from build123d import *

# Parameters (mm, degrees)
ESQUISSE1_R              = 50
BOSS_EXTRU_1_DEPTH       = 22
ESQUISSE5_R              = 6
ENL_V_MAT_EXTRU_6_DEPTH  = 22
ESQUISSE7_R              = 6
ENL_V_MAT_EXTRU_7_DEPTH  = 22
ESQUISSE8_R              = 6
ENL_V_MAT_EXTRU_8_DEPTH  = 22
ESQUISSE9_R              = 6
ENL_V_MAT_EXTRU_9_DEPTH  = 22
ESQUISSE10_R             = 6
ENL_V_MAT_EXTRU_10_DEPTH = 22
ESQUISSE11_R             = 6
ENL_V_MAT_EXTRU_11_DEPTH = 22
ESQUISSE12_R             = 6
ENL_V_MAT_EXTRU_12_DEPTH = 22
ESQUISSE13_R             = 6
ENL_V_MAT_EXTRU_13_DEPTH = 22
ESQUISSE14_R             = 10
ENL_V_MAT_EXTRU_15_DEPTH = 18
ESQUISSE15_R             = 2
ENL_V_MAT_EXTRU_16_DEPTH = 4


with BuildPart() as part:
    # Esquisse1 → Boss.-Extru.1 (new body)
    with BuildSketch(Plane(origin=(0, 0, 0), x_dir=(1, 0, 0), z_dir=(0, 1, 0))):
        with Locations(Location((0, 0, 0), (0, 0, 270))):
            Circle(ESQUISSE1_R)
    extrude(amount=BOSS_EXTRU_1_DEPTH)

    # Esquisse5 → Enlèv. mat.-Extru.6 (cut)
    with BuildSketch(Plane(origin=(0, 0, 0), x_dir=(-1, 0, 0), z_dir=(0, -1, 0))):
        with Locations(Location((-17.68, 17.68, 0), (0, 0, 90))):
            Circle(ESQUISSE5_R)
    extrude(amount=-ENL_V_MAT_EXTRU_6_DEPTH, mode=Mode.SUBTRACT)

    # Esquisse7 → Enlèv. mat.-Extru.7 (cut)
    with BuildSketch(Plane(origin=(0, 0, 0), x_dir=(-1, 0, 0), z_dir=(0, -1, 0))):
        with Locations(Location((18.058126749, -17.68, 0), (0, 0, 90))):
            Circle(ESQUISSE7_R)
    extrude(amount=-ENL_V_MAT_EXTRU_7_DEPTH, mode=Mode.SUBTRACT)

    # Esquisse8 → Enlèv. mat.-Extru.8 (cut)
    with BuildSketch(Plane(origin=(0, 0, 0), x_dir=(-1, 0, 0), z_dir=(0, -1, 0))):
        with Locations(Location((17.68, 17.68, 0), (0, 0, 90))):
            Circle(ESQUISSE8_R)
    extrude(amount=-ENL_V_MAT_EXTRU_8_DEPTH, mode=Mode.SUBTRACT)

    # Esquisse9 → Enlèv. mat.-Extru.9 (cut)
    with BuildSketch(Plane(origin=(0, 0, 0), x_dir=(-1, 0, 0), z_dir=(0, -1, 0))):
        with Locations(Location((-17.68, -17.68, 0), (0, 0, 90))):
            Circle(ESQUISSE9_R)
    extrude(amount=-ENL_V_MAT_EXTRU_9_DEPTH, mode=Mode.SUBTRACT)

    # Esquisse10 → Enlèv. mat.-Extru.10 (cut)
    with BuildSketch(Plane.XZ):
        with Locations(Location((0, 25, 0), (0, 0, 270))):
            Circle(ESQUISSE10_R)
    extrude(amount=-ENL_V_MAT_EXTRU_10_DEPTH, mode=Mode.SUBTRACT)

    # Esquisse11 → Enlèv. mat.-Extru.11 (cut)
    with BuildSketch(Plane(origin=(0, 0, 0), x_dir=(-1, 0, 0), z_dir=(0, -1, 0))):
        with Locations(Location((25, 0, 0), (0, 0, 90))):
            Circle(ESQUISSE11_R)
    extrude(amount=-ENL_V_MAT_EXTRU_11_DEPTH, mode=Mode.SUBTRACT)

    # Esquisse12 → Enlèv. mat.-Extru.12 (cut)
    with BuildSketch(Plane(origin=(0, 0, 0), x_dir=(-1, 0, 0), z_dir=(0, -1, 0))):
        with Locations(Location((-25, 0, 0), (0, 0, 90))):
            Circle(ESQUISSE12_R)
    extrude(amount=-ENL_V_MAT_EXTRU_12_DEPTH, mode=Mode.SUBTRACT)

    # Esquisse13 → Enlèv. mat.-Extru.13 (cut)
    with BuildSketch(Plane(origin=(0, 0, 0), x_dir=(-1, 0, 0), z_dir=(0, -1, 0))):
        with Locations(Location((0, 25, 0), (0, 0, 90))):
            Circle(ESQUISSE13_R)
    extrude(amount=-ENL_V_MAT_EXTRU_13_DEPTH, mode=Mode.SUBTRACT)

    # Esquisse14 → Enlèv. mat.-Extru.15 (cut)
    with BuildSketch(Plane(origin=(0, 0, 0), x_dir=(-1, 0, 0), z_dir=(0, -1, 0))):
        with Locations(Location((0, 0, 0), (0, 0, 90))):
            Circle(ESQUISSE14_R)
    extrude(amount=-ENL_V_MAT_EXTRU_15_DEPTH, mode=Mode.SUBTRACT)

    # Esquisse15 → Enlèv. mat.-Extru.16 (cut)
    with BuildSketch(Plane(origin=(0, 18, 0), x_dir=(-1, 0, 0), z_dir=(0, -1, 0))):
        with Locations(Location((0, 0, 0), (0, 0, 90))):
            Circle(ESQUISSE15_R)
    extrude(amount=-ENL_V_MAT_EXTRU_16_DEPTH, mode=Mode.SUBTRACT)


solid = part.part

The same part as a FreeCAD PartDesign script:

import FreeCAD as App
import Part
import Sketcher

doc = App.newDocument("Part")
params = doc.addObject("Spreadsheet::Sheet", "Params")
for row, (alias, value) in enumerate([
    ("sketch1_diameter", "100 mm"),
    ("pad1_length", "22 mm"),
    ("sketch2_diameter", "12 mm"),
    ("pocket1_length", "22 mm"),
    ("sketch3_diameter", "12 mm"),
    ("pocket2_length", "22 mm"),
    ("sketch4_diameter", "12 mm"),
    ("pocket3_length", "22 mm"),
    ("sketch5_diameter", "12 mm"),
    ("pocket4_length", "22 mm"),
    ("sketch6_diameter", "12 mm"),
    ("pocket5_length", "22 mm"),
    ("sketch7_diameter", "12 mm"),
    ("pocket6_length", "22 mm"),
    ("sketch8_diameter", "12 mm"),
    ("pocket7_length", "22 mm"),
    ("sketch9_diameter", "12 mm"),
    ("pocket8_length", "22 mm"),
    ("sketch10_diameter", "20 mm"),
    ("pocket9_length", "18 mm"),
    ("sketch11_diameter", "4 mm"),
    ("pocket10_length", "4 mm"),
], start=1):
    params.set(f"A{row}", alias)
    params.set(f"B{row}", "=" + value)
    params.setAlias(f"B{row}", alias)

body = doc.addObject("PartDesign::Body", "Body")

sketch1 = body.newObject("Sketcher::SketchObject", "Sketch")
sketch1.AttachmentSupport = (doc.getObject("XZ_Plane"), [""])
sketch1.MapMode = "FlatFace"
sketch1.addGeometry(Part.Circle(App.Vector(0, 0, 0), App.Vector(0, 0, 1), 50), False)
sketch1.addConstraint([
    Sketcher.Constraint("Coincident", 0, 3, -1, 1),
    Sketcher.Constraint("Diameter", 0, 100.0),
])
sketch1.setExpression("Constraints[1]", "Params.sketch1_diameter")
pad1 = body.newObject("PartDesign::Pad", "Pad")
pad1.Profile = sketch1
pad1.setExpression("Length", "Params.pad1_length")
pad1.Reversed = True

sketch2 = body.newObject("Sketcher::SketchObject", "Sketch001")
sketch2.AttachmentSupport = (doc.getObject("XZ_Plane"), [""])
sketch2.MapMode = "FlatFace"
sketch2.addGeometry(Part.Circle(App.Vector(18, -18, 0), App.Vector(0, 0, 1), 6), False)
sketch2.addConstraint([
    Sketcher.Constraint("Diameter", 0, 12.0),
    Sketcher.Constraint("DistanceX", -1, 1, 0, 3, 17.68),
    Sketcher.Constraint("DistanceY", 0, 3, -1, 1, 17.68),
])
sketch2.setExpression("Constraints[0]", "Params.sketch2_diameter")
pocket1 = body.newObject("PartDesign::Pocket", "Pocket")
pocket1.Profile = sketch2
pocket1.setExpression("Length", "Params.pocket1_length")

sketch3 = body.newObject("Sketcher::SketchObject", "Sketch002")
sketch3.AttachmentSupport = (doc.getObject("XZ_Plane"), [""])
sketch3.MapMode = "FlatFace"
sketch3.addGeometry(Part.Circle(App.Vector(-18, 18, 0), App.Vector(0, 0, 1), 6), False)
sketch3.addConstraint([
    Sketcher.Constraint("Diameter", 0, 12.0),
    Sketcher.Constraint("DistanceY", -1, 1, 0, 3, 17.68),
    Sketcher.Constraint("DistanceX", 0, 3, -1, 1, 18.058127),
])
sketch3.setExpression("Constraints[0]", "Params.sketch3_diameter")
pocket2 = body.newObject("PartDesign::Pocket", "Pocket001")
pocket2.Profile = sketch3
pocket2.setExpression("Length", "Params.pocket2_length")

sketch4 = body.newObject("Sketcher::SketchObject", "Sketch003")
sketch4.AttachmentSupport = (doc.getObject("XZ_Plane"), [""])
sketch4.MapMode = "FlatFace"
sketch4.addGeometry(Part.Circle(App.Vector(-18, -18, 0), App.Vector(0, 0, 1), 6), False)
sketch4.addConstraint([
    Sketcher.Constraint("Diameter", 0, 12.0),
    Sketcher.Constraint("DistanceX", 0, 3, -1, 1, 17.68),
    Sketcher.Constraint("DistanceY", 0, 3, -1, 1, 17.68),
])
sketch4.setExpression("Constraints[0]", "Params.sketch4_diameter")
pocket3 = body.newObject("PartDesign::Pocket", "Pocket002")
pocket3.Profile = sketch4
pocket3.setExpression("Length", "Params.pocket3_length")

sketch5 = body.newObject("Sketcher::SketchObject", "Sketch004")
sketch5.AttachmentSupport = (doc.getObject("XZ_Plane"), [""])
sketch5.MapMode = "FlatFace"
sketch5.addGeometry(Part.Circle(App.Vector(18, 18, 0), App.Vector(0, 0, 1), 6), False)
sketch5.addConstraint([
    Sketcher.Constraint("Diameter", 0, 12.0),
    Sketcher.Constraint("DistanceX", -1, 1, 0, 3, 17.68),
    Sketcher.Constraint("DistanceY", -1, 1, 0, 3, 17.68),
])
sketch5.setExpression("Constraints[0]", "Params.sketch5_diameter")
pocket4 = body.newObject("PartDesign::Pocket", "Pocket003")
pocket4.Profile = sketch5
pocket4.setExpression("Length", "Params.pocket4_length")

sketch6 = body.newObject("Sketcher::SketchObject", "Sketch005")
sketch6.AttachmentSupport = (doc.getObject("XZ_Plane"), [""])
sketch6.MapMode = "FlatFace"
sketch6.addGeometry(Part.Circle(App.Vector(0, 25, 0), App.Vector(0, 0, 1), 6), False)
sketch6.addConstraint([
    Sketcher.Constraint("PointOnObject", 0, 3, -2),
    Sketcher.Constraint("Diameter", 0, 12.0),
    Sketcher.Constraint("DistanceY", -1, 1, 0, 3, 25.0),
])
sketch6.setExpression("Constraints[1]", "Params.sketch6_diameter")
pocket5 = body.newObject("PartDesign::Pocket", "Pocket004")
pocket5.Profile = sketch6
pocket5.setExpression("Length", "Params.pocket5_length")

sketch7 = body.newObject("Sketcher::SketchObject", "Sketch006")
sketch7.AttachmentSupport = (doc.getObject("XZ_Plane"), [""])
sketch7.MapMode = "FlatFace"
sketch7.addGeometry(Part.Circle(App.Vector(-25, 0, 0), App.Vector(0, 0, 1), 6), False)
sketch7.addConstraint([
    Sketcher.Constraint("PointOnObject", 0, 3, -1),
    Sketcher.Constraint("Diameter", 0, 12.0),
    Sketcher.Constraint("DistanceX", 0, 3, -1, 1, 25.0),
])
sketch7.setExpression("Constraints[1]", "Params.sketch7_diameter")
pocket6 = body.newObject("PartDesign::Pocket", "Pocket005")
pocket6.Profile = sketch7
pocket6.setExpression("Length", "Params.pocket6_length")

sketch8 = body.newObject("Sketcher::SketchObject", "Sketch007")
sketch8.AttachmentSupport = (doc.getObject("XZ_Plane"), [""])
sketch8.MapMode = "FlatFace"
sketch8.addGeometry(Part.Circle(App.Vector(25, 0, 0), App.Vector(0, 0, 1), 6), False)
sketch8.addConstraint([
    Sketcher.Constraint("PointOnObject", 0, 3, -1),
    Sketcher.Constraint("Diameter", 0, 12.0),
    Sketcher.Constraint("DistanceX", -1, 1, 0, 3, 25.0),
])
sketch8.setExpression("Constraints[1]", "Params.sketch8_diameter")
pocket7 = body.newObject("PartDesign::Pocket", "Pocket006")
pocket7.Profile = sketch8
pocket7.setExpression("Length", "Params.pocket7_length")

sketch9 = body.newObject("Sketcher::SketchObject", "Sketch008")
sketch9.AttachmentSupport = (doc.getObject("XZ_Plane"), [""])
sketch9.MapMode = "FlatFace"
sketch9.addGeometry(Part.Circle(App.Vector(0, -25, 0), App.Vector(0, 0, 1), 6), False)
sketch9.addConstraint([
    Sketcher.Constraint("PointOnObject", 0, 3, -2),
    Sketcher.Constraint("Diameter", 0, 12.0),
    Sketcher.Constraint("DistanceY", 0, 3, -1, 1, 25.0),
])
sketch9.setExpression("Constraints[1]", "Params.sketch9_diameter")
pocket8 = body.newObject("PartDesign::Pocket", "Pocket007")
pocket8.Profile = sketch9
pocket8.setExpression("Length", "Params.pocket8_length")

sketch10 = body.newObject("Sketcher::SketchObject", "Sketch009")
sketch10.AttachmentSupport = (doc.getObject("XZ_Plane"), [""])
sketch10.MapMode = "FlatFace"
sketch10.addGeometry(Part.Circle(App.Vector(0, 0, 0), App.Vector(0, 0, 1), 10), False)
sketch10.addConstraint([
    Sketcher.Constraint("Coincident", 0, 3, -1, 1),
    Sketcher.Constraint("Diameter", 0, 20.0),
])
sketch10.setExpression("Constraints[1]", "Params.sketch10_diameter")
pocket9 = body.newObject("PartDesign::Pocket", "Pocket008")
pocket9.Profile = sketch10
pocket9.setExpression("Length", "Params.pocket9_length")

sketch11 = body.newObject("Sketcher::SketchObject", "Sketch010")
sketch11.AttachmentSupport = (doc.getObject("XZ_Plane"), [""])
sketch11.MapMode = "FlatFace"
sketch11.AttachmentOffset = App.Placement(App.Vector(0, 0, -18), App.Rotation())
sketch11.addGeometry(Part.Circle(App.Vector(0, 0, 0), App.Vector(0, 0, 1), 2), False)
sketch11.addConstraint([
    Sketcher.Constraint("Coincident", 0, 3, -1, 1),
    Sketcher.Constraint("Diameter", 0, 4.0),
])
sketch11.setExpression("Constraints[1]", "Params.sketch11_diameter")
pocket10 = body.newObject("PartDesign::Pocket", "Pocket009")
pocket10.Profile = sketch11
pocket10.setExpression("Length", "Params.pocket10_length")

doc.recompute()
